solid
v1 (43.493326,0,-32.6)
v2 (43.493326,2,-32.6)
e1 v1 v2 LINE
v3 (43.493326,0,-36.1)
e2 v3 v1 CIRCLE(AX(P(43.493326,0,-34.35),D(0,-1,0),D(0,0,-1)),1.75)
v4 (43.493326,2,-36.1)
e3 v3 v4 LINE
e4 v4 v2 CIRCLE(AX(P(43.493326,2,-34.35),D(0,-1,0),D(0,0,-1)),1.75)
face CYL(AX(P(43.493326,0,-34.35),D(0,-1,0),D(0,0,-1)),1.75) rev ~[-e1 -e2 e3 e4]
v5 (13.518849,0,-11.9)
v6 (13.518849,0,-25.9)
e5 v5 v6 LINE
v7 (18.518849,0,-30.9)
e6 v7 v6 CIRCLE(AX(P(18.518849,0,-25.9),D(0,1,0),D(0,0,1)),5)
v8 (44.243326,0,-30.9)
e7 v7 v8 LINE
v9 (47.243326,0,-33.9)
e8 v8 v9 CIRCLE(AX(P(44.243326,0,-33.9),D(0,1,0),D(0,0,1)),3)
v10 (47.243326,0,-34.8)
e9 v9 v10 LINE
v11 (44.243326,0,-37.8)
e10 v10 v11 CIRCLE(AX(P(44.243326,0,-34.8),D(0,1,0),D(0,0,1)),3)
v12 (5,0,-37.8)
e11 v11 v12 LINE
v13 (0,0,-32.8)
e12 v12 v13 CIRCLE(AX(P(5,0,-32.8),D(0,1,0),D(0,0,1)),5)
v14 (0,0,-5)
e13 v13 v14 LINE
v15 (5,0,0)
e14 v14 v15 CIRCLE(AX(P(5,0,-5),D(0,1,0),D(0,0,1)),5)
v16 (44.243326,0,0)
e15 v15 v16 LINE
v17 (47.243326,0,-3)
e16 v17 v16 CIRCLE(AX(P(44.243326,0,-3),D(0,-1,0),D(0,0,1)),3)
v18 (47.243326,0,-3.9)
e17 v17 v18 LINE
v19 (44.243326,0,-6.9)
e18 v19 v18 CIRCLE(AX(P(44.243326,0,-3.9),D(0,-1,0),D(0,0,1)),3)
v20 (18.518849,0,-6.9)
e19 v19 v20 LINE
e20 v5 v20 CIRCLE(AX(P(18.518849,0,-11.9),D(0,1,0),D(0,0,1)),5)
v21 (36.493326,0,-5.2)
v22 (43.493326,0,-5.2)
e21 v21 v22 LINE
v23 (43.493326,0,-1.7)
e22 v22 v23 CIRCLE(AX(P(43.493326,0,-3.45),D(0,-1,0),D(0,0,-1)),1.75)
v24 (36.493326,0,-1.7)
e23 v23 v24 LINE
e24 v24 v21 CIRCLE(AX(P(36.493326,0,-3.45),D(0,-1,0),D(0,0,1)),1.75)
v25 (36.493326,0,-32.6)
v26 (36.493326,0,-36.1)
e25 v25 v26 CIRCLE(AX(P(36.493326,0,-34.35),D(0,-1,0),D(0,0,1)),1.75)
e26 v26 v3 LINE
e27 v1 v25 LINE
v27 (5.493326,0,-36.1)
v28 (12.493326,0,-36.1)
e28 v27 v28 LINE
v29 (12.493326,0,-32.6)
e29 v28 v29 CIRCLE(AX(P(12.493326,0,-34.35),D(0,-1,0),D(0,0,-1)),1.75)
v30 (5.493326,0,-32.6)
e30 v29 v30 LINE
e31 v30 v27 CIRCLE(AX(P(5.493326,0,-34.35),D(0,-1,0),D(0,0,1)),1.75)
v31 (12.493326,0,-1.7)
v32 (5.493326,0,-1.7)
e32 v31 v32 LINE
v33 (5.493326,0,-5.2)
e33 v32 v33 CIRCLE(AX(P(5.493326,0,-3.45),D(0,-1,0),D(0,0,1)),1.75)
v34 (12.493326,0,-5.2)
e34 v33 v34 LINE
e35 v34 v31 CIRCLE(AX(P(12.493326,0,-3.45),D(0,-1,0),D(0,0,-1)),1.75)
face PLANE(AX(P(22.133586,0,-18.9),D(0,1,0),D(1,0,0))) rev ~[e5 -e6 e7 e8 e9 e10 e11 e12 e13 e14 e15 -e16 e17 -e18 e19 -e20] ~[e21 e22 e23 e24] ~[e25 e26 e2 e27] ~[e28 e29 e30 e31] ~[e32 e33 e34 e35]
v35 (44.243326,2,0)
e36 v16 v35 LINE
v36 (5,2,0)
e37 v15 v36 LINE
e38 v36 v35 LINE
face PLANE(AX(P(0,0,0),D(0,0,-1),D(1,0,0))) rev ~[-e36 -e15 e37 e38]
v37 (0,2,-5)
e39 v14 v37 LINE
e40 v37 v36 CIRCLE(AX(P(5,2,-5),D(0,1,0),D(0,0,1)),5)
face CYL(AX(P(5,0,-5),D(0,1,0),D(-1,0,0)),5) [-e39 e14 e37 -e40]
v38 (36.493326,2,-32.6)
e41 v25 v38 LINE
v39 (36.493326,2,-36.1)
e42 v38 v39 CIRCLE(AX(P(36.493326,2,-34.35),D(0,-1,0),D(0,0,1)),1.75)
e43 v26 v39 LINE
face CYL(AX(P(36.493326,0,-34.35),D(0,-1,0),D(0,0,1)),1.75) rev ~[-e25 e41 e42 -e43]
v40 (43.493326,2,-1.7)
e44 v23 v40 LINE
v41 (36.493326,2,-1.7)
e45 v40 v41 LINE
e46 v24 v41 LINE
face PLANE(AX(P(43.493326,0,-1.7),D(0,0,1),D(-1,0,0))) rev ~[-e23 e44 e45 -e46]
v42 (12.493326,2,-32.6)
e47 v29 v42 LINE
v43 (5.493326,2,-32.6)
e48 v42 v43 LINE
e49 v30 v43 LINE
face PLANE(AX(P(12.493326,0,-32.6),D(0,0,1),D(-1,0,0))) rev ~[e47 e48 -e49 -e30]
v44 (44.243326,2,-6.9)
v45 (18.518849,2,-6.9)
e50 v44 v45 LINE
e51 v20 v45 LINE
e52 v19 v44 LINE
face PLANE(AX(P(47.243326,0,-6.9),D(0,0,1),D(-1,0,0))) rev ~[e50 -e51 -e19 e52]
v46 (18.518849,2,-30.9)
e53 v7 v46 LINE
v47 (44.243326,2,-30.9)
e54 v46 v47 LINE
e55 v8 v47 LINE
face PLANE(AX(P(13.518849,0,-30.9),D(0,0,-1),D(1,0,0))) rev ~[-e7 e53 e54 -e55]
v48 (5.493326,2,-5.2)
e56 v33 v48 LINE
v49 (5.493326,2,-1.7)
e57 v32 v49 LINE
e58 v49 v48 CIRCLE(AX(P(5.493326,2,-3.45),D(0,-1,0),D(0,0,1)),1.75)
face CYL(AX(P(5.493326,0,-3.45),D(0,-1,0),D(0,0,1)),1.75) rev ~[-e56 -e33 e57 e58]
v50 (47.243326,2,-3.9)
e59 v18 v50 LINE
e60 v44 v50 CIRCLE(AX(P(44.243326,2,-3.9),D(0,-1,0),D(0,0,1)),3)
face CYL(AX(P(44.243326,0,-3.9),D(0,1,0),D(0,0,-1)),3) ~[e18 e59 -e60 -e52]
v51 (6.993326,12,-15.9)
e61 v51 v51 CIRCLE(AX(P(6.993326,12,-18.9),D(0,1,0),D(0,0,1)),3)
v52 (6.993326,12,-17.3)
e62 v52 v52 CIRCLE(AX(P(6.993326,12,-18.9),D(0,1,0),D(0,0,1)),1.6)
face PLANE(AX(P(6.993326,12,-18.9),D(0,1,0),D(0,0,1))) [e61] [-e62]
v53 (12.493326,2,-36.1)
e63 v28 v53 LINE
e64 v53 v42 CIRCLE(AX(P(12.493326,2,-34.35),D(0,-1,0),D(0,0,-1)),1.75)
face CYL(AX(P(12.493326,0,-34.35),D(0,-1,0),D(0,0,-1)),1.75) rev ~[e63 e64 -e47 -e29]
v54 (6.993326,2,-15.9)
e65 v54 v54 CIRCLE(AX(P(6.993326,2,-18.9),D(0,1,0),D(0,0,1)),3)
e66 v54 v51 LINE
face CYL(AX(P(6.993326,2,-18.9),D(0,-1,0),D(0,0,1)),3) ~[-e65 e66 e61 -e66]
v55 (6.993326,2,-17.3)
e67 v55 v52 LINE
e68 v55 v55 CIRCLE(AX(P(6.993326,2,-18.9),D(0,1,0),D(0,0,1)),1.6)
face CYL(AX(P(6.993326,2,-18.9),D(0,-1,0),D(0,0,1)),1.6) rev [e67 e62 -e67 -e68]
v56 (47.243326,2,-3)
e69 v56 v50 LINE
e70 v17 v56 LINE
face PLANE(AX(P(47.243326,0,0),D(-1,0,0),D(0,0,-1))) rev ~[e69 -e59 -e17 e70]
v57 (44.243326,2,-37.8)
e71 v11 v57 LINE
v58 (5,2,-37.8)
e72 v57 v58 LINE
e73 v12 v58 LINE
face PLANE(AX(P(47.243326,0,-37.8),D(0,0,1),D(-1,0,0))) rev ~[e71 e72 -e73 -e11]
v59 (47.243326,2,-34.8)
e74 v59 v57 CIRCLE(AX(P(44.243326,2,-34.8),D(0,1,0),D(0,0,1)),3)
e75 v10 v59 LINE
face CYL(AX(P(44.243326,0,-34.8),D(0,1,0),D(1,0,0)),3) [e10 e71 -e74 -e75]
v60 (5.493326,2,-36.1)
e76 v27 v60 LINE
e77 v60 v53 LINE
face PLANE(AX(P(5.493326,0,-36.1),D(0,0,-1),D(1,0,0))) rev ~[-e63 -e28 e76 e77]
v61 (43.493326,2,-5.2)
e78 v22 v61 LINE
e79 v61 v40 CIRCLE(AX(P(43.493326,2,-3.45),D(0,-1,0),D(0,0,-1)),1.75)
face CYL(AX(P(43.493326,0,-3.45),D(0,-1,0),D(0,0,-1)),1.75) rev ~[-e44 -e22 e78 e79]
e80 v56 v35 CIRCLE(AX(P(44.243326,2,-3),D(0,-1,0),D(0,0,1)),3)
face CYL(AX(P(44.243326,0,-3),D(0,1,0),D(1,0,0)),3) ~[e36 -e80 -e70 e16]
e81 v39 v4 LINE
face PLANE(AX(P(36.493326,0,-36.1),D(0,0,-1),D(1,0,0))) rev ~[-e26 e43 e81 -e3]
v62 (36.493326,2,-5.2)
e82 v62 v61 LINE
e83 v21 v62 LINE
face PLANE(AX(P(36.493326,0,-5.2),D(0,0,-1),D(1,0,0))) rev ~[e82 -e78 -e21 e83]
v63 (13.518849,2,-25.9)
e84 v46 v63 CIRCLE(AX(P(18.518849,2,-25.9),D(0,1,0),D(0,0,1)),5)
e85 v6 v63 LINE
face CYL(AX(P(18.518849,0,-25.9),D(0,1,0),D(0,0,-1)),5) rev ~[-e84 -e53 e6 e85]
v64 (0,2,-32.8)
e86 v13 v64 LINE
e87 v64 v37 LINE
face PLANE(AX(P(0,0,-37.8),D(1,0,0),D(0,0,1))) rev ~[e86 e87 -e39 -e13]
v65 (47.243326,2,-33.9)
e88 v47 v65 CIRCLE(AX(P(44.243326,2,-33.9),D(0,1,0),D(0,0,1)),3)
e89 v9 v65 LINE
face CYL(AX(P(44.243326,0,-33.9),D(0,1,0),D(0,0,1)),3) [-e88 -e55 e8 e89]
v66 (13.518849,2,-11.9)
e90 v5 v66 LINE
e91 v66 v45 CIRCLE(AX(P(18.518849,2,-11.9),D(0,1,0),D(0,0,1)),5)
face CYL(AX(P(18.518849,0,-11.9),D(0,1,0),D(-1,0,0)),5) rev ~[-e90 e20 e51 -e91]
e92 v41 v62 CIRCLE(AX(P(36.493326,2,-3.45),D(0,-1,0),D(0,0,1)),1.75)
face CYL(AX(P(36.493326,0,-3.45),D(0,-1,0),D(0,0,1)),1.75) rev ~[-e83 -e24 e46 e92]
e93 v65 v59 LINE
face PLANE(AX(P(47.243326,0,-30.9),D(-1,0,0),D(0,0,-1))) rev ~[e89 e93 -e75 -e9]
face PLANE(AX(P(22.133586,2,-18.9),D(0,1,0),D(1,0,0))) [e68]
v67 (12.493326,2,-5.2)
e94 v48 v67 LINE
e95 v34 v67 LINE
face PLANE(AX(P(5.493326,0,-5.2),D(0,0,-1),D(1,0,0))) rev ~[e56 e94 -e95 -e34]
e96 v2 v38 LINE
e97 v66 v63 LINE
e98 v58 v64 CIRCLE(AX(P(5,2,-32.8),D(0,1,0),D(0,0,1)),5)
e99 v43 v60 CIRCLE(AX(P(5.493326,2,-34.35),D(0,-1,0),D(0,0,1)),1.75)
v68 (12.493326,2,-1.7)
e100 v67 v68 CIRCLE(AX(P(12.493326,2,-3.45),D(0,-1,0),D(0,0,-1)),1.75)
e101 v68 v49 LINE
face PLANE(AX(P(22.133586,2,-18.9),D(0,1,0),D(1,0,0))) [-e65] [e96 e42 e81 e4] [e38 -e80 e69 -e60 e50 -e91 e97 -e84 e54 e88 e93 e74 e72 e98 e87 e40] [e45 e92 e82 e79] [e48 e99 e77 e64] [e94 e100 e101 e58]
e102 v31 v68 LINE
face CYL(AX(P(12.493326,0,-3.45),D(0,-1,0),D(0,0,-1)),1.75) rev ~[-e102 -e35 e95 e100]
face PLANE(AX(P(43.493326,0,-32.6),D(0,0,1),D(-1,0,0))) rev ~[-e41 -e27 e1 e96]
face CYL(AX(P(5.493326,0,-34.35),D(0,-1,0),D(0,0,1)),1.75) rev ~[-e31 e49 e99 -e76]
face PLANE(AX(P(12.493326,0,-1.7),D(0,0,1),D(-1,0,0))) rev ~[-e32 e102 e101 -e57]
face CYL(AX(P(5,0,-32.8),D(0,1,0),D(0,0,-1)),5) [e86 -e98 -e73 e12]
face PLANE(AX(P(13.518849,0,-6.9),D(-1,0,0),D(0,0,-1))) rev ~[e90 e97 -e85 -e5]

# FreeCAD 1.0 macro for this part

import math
import FreeCAD as App
import Part
import Sketcher
from FreeCAD import Vector
Q = App.Units.Quantity


def edges_at(feature, points):
    """Names of the edges that pass closest to the given points."""
    edges = feature.Shape.Edges
    near = lambda p: min(range(len(edges)), key=lambda i: edges[i].distToShape(Part.Vertex(*p))[0])
    return sorted({f"Edge{near(p) + 1}" for p in points})


def add_polygon(sketch, points):
    """Adds a closed chain of lines whose ends are joined by coincident constraints."""
    first, n = sketch.GeometryCount, len(points)
    for a, b in zip(points, points[1:] + points[:1]):
        sketch.addGeometry(Part.LineSegment(App.Vector(*a, 0), App.Vector(*b, 0)), False)
    for i in range(n):
        sketch.addConstraint(Sketcher.Constraint("Coincident", first + i, 2, first + (i + 1) % n, 1))

doc = App.newDocument("Part")
params = doc.addObject("Spreadsheet::Sheet", "Params")
for row, (alias, value) in enumerate([
    ("sketch1_width", "7 mm"),
    ("sketch1_height", "24 mm"),
    ("sketch1_radius", "1.75 mm"),
    ("sketch1_height2", "6.9 mm"),
    ("pad1_length", "2 mm"),
    ("fillet_radius", "5 mm"),
    ("fillet2_radius", "3 mm"),
    ("sketch2_diameter", "6 mm"),
    ("sketch2_diameter2", "3.2 mm"),
    ("pad2_length", "10 mm"),
], start=1):
    params.set(f"A{row}", alias)
    params.set(f"B{row}", "=" + value)
    params.setAlias(f"B{row}", alias)

body = doc.addObject("PartDesign::Body", "Body")

# Sketch on XZ plane
sketch1 = body.newObject("Sketcher::SketchObject", "Sketch")
sketch1.AttachmentSupport = (doc.getObject("XZ_Plane"), [""])
sketch1.MapMode = "FlatFace"
add_polygon(sketch1, [(47.2, -30.9), (47.2, -37.8), (0, -37.8), (0, 0), (47.2, 0), (47.2, -6.9), (13.5, -6.9), (13.5, -30.9)])  # lines 0-7
sketch1.addGeometry(Part.ArcOfCircle(Part.Circle(Vector(5.5, -3.5, 0), Vector(0, 0, 1), 1.8), math.radians(90), math.radians(270)), False)  # 8
sketch1.addGeometry(Part.LineSegment(Vector(5.5, -5.2, 0), Vector(12.5, -5.2, 0)), False)  # 9
sketch1.addGeometry(Part.ArcOfCircle(Part.Circle(Vector(12.5, -3.5, 0), Vector(0, 0, 1), 1.8), math.radians(-90), math.radians(90)), False)  # 10
sketch1.addGeometry(Part.LineSegment(Vector(12.5, -1.7, 0), Vector(5.5, -1.7, 0)), False)  # 11
sketch1.addGeometry(Part.ArcOfCircle(Part.Circle(Vector(36.5, -3.5, 0), Vector(0, 0, 1), 1.8), math.radians(90), math.radians(270)), False)  # 12
sketch1.addGeometry(Part.LineSegment(Vector(36.5, -5.2, 0), Vector(43.5, -5.2, 0)), False)  # 13
sketch1.addGeometry(Part.ArcOfCircle(Part.Circle(Vector(43.5, -3.5, 0), Vector(0, 0, 1), 1.8), math.radians(-90), math.radians(90)), False)  # 14
sketch1.addGeometry(Part.LineSegment(Vector(43.5, -1.7, 0), Vector(36.5, -1.7, 0)), False)  # 15
sketch1.addGeometry(Part.ArcOfCircle(Part.Circle(Vector(5.5, -34.4, 0), Vector(0, 0, 1), 1.8), math.radians(90), math.radians(270)), False)  # 16
sketch1.addGeometry(Part.LineSegment(Vector(5.5, -36.1, 0), Vector(12.5, -36.1, 0)), False)  # 17
sketch1.addGeometry(Part.ArcOfCircle(Part.Circle(Vector(12.5, -34.4, 0), Vector(0, 0, 1), 1.8), math.radians(-90), math.radians(90)), False)  # 18
sketch1.addGeometry(Part.LineSegment(Vector(12.5, -32.6, 0), Vector(5.5, -32.6, 0)), False)  # 19
sketch1.addGeometry(Part.ArcOfCircle(Part.Circle(Vector(36.5, -34.4, 0), Vector(0, 0, 1), 1.8), math.radians(90), math.radians(270)), False)  # 20
sketch1.addGeometry(Part.LineSegment(Vector(36.5, -36.1, 0), Vector(43.5, -36.1, 0)), False)  # 21
sketch1.addGeometry(Part.ArcOfCircle(Part.Circle(Vector(43.5, -34.4, 0), Vector(0, 0, 1), 1.8), math.radians(-90), math.radians(90)), False)  # 22
sketch1.addGeometry(Part.LineSegment(Vector(43.5, -32.6, 0), Vector(36.5, -32.6, 0)), False)  # 23
sketch1.addConstraint(Sketcher.Constraint("Tangent", 8, 2, 9, 1))
sketch1.addConstraint(Sketcher.Constraint("Tangent", 9, 2, 10, 1))
sketch1.addConstraint(Sketcher.Constraint("Tangent", 10, 2, 11, 1))
sketch1.addConstraint(Sketcher.Constraint("Tangent", 11, 2, 8, 1))
sketch1.addConstraint(Sketcher.Constraint("Tangent", 12, 2, 13, 1))
sketch1.addConstraint(Sketcher.Constraint("Tangent", 13, 2, 14, 1))
sketch1.addConstraint(Sketcher.Constraint("Tangent", 14, 2, 15, 1))
sketch1.addConstraint(Sketcher.Constraint("Tangent", 15, 2, 12, 1))
sketch1.addConstraint(Sketcher.Constraint("Tangent", 16, 2, 17, 1))
sketch1.addConstraint(Sketcher.Constraint("Tangent", 17, 2, 18, 1))
sketch1.addConstraint(Sketcher.Constraint("Tangent", 18, 2, 19, 1))
sketch1.addConstraint(Sketcher.Constraint("Tangent", 19, 2, 16, 1))
sketch1.addConstraint(Sketcher.Constraint("Tangent", 20, 2, 21, 1))
sketch1.addConstraint(Sketcher.Constraint("Tangent", 21, 2, 22, 1))
sketch1.addConstraint(Sketcher.Constraint("Tangent", 22, 2, 23, 1))
sketch1.addConstraint(Sketcher.Constraint("Tangent", 23, 2, 20, 1))
sketch1.addConstraint(Sketcher.Constraint("Vertical", 0))
sketch1.addConstraint(Sketcher.Constraint("Horizontal", 1))
sketch1.addConstraint(Sketcher.Constraint("Vertical", 2))
sketch1.addConstraint(Sketcher.Constraint("Horizontal", 3))
sketch1.addConstraint(Sketcher.Constraint("Vertical", 4))
sketch1.addConstraint(Sketcher.Constraint("Horizontal", 5))
sketch1.addConstraint(Sketcher.Constraint("Vertical", 6))
sketch1.addConstraint(Sketcher.Constraint("Horizontal", 7))
sketch1.addConstraint(Sketcher.Constraint("Horizontal", 9))
sketch1.addConstraint(Sketcher.Constraint("Horizontal", 11))
sketch1.addConstraint(Sketcher.Constraint("Horizontal", 13))
sketch1.addConstraint(Sketcher.Constraint("Horizontal", 15))
sketch1.addConstraint(Sketcher.Constraint("Horizontal", 17))
sketch1.addConstraint(Sketcher.Constraint("Horizontal", 19))
sketch1.addConstraint(Sketcher.Constraint("Horizontal", 21))
sketch1.addConstraint(Sketcher.Constraint("Horizontal", 23))
sketch1.addConstraint(Sketcher.Constraint("Coincident", 2, 2, -1, 1))
sketch1.addConstraint(Sketcher.Constraint("Equal", 10, 12))
sketch1.addConstraint(Sketcher.Constraint("Equal", 14, 16))
sketch1.addConstraint(Sketcher.Constraint("Equal", 18, 20))
sketch1.addConstraint(Sketcher.Constraint("Horizontal", 10, 3, 12, 3))
sketch1.addConstraint(Sketcher.Constraint("Horizontal", 18, 3, 20, 3))
sketch1.addConstraint(Sketcher.Constraint("Vertical", 8, 3, 16, 3))
sketch1.addConstraint(Sketcher.Constraint("Vertical", 10, 3, 18, 3))
sketch1.addConstraint(Sketcher.Constraint("Vertical", 12, 3, 20, 3))
sketch1.addConstraint(Sketcher.Constraint("Vertical", 14, 3, 22, 3))
sketch1.addConstraint(Sketcher.Constraint("Vertical", 0, 2, 3, 2))
sketch1.addConstraint(Sketcher.Constraint("Equal", 11, 13))
sketch1.addConstraint(Sketcher.Constraint("Equal", 0, 4))
sketch1.addConstraint(Sketcher.Constraint("DistanceX", 9, 1, 9, 2, Q("7 mm")))
sketch1.addConstraint(Sketcher.Constraint("DistanceY", 6, 2, 6, 1, Q("24 mm")))
sketch1.addConstraint(Sketcher.Constraint("Radius", 8, Q("1.75 mm")))
sketch1.addConstraint(Sketcher.Constraint("DistanceY", 0, 2, 0, 1, Q("6.9 mm")))
sketch1.addConstraint(Sketcher.Constraint("DistanceX", 10, 3, 12, 3, Q("24 mm")))
sketch1.addConstraint(Sketcher.Constraint("DistanceY", 8, 2, -1, 1, Q("5.2 mm")))
sketch1.addConstraint(Sketcher.Constraint("DistanceY", 16, 2, -1, 1, Q("36.1 mm")))
sketch1.addConstraint(Sketcher.Constraint("DistanceX", 22, 3, 0, 2, Q("3.75 mm")))
sketch1.addConstraint(Sketcher.Constraint("DistanceX", 1, 2, 1, 1, Q("47.243326 mm")))
sketch1.addConstraint(Sketcher.Constraint("DistanceX", 5, 2, 5, 1, Q("33.724476 mm")))
sketch1.setExpression("Constraints[53]", "Params.sketch1_width")
sketch1.setExpression("Constraints[54]", "Params.sketch1_height")
sketch1.setExpression("Constraints[55]", "Params.sketch1_radius")
sketch1.setExpression("Constraints[56]", "Params.sketch1_height2")
pad1 = body.newObject("PartDesign::Pad", "Pad")
pad1.Profile = sketch1
pad1.setExpression("Length", "Params.pad1_length")
pad1.Reversed = True
doc.recompute()

fillet = body.newObject("PartDesign::Fillet", "Fillet")
fillet.Base = (pad1, edges_at(pad1, [
    (13.519, 1, -6.9),
    (0, 1, 0),
    (0, 1, -37.8),
    (13.519, 1, -30.9),
]))
fillet.setExpression("Radius", "Params.fillet_radius")
doc.recompute()

fillet2 = body.newObject("PartDesign::Fillet", "Fillet001")
fillet2.Base = (fillet, edges_at(fillet, [
    (47.243, 1, -6.9),
    (47.243, 1, 0),
    (47.243, 1, -37.8),
    (47.243, 1, -30.9),
]))
fillet2.setExpression("Radius", "Params.fillet2_radius")

# Sketch on XZ plane
sketch2 = body.newObject("Sketcher::SketchObject", "Sketch001")
sketch2.AttachmentSupport = (doc.getObject("XZ_Plane"), [""])
sketch2.MapMode = "FlatFace"
sketch2.AttachmentOffset = App.Placement(Vector(0, 0, -2), App.Rotation())
sketch2.addGeometry(Part.Circle(Vector(7, -18.9, 0), Vector(0, 0, 1), 3), False)
sketch2.addGeometry(Part.Circle(Vector(7, -18.9, 0), Vector(0, 0, 1), 1.6), False)
sketch2.addConstraint(Sketcher.Constraint("Coincident", 1, 3, 0, 3))
sketch2.addConstraint(Sketcher.Constraint("Diameter", 0, Q("6 mm")))
sketch2.addConstraint(Sketcher.Constraint("Diameter", 1, Q("3.2 mm")))
sketch2.addConstraint(Sketcher.Constraint("DistanceY", 0, 3, -1, 1, Q("18.9 mm")))
sketch2.addConstraint(Sketcher.Constraint("DistanceX", -1, 1, 0, 3, Q("6.993326 mm")))
sketch2.setExpression("Constraints[1]", "Params.sketch2_diameter")
sketch2.setExpression("Constraints[2]", "Params.sketch2_diameter2")
pad2 = body.newObject("PartDesign::Pad", "Pad001")
pad2.Profile = sketch2
pad2.setExpression("Length", "Params.pad2_length")
pad2.Reversed = True

doc.recompute()
